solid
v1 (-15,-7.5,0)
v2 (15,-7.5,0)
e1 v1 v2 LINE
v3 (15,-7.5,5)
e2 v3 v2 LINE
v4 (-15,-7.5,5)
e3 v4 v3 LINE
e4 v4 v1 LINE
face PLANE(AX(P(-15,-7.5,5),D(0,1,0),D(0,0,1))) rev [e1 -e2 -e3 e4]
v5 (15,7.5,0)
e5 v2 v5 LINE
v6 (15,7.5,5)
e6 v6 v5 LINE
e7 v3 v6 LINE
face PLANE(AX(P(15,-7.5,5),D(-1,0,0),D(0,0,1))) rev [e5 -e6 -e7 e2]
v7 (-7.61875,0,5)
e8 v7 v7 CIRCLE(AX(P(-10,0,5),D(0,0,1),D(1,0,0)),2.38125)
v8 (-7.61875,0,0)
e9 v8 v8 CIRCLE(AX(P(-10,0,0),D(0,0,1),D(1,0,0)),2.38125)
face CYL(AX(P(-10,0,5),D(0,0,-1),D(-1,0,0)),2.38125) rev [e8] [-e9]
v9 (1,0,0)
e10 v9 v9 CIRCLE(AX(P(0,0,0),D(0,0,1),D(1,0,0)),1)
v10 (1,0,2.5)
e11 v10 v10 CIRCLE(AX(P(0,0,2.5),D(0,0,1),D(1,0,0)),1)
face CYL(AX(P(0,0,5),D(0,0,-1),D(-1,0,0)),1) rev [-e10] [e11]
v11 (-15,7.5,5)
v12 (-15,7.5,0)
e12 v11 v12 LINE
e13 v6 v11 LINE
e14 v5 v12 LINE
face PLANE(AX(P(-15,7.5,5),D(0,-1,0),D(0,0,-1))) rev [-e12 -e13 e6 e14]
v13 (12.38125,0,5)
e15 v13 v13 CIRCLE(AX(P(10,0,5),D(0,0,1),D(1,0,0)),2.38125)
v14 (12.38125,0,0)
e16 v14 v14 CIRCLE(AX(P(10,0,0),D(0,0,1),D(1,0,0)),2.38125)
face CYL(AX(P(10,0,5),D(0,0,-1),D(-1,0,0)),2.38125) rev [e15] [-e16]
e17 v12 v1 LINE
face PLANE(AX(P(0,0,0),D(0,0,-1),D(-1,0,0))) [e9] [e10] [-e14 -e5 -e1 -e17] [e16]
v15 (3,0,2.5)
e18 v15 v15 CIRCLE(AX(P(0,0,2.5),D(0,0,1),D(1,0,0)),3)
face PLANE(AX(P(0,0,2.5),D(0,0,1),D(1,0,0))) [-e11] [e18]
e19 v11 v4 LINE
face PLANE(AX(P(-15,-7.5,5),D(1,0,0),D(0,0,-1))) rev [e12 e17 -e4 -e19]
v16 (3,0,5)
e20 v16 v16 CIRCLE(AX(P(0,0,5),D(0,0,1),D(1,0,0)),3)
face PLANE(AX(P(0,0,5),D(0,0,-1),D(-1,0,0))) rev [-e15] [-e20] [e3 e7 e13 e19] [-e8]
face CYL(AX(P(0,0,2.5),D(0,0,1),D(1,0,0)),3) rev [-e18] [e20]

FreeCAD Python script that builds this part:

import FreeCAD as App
import Part
import Sketcher
Q = App.Units.Quantity

doc = App.newDocument("Part")
body = doc.addObject("PartDesign::Body", "Body")

sketch1 = body.newObject("Sketcher::SketchObject", "Sketch")
sketch1.AttachmentSupport = (doc.getObject("XY_Plane"), [""])
sketch1.MapMode = "FlatFace"
sketch1.addGeometry([
    Part.LineSegment(App.Vector(-15, 7.5, 0), App.Vector(-15, -7.5, 0)),
    Part.LineSegment(App.Vector(-15, -7.5, 0), App.Vector(15, -7.5, 0)),
    Part.LineSegment(App.Vector(15, -7.5, 0), App.Vector(15, 7.5, 0)),
    Part.LineSegment(App.Vector(15, 7.5, 0), App.Vector(-15, 7.5, 0)),
    Part.Circle(App.Vector(-10, 0, 0), App.Vector(0, 0, 1), 2.4),
    Part.Circle(App.Vector(0, 0, 0), App.Vector(0, 0, 1), 1),
    Part.Circle(App.Vector(10, 0, 0), App.Vector(0, 0, 1), 2.4),
], False)
sketch1.addConstraint([
    Sketcher.Constraint("Coincident", 0, 2, 1, 1),
    Sketcher.Constraint("Coincident", 1, 2, 2, 1),
    Sketcher.Constraint("Coincident", 2, 2, 3, 1),
    Sketcher.Constraint("Coincident", 3, 2, 0, 1),
    Sketcher.Constraint("Vertical", 0),
    Sketcher.Constraint("Horizontal", 1),
    Sketcher.Constraint("Vertical", 2),
    Sketcher.Constraint("Horizontal", 3),
    Sketcher.Constraint("Coincident", 5, 3, -1, 1),
    Sketcher.Constraint("Equal", 4, 6),
    Sketcher.Constraint("Symmetric", 4, 3, 6, 3, -1, 1),
    Sketcher.Constraint("Symmetric", 0, 2, 2, 2, -1, 1),
    Sketcher.Constraint("PointOnObject", 4, 3, -1),
    Sketcher.Constraint("Diameter", 5, Q("2 mm")),
    Sketcher.Constraint("DistanceX", 1, 1, 1, 2, Q("30 mm")),
    Sketcher.Constraint("DistanceY", 0, 2, 0, 1, Q("15 mm")),
    Sketcher.Constraint("DistanceX", 4, 3, -1, 1, Q("10 mm")),
    Sketcher.Constraint("Diameter", 4, Q("4.7625 mm")),
])
pad1 = body.newObject("PartDesign::Pad", "Pad")
pad1.Profile = sketch1
pad1.Length = 5

sketch2 = body.newObject("Sketcher::SketchObject", "Sketch001")
sketch2.AttachmentSupport = (doc.getObject("XY_Plane"), [""])
sketch2.MapMode = "FlatFace"
sketch2.AttachmentOffset = App.Placement(App.Vector(0, 0, 5), App.Rotation())
sketch2.addGeometry(Part.Circle(App.Vector(0, 0, 0), App.Vector(0, 0, 1), 3), False)
sketch2.addConstraint([
    Sketcher.Constraint("Coincident", 0, 3, -1, 1),
    Sketcher.Constraint("Diameter", 0, Q("6 mm")),
])
pocket1 = body.newObject("PartDesign::Pocket", "Pocket")
pocket1.Profile = sketch2
pocket1.Length = 2.5

doc.recompute()
